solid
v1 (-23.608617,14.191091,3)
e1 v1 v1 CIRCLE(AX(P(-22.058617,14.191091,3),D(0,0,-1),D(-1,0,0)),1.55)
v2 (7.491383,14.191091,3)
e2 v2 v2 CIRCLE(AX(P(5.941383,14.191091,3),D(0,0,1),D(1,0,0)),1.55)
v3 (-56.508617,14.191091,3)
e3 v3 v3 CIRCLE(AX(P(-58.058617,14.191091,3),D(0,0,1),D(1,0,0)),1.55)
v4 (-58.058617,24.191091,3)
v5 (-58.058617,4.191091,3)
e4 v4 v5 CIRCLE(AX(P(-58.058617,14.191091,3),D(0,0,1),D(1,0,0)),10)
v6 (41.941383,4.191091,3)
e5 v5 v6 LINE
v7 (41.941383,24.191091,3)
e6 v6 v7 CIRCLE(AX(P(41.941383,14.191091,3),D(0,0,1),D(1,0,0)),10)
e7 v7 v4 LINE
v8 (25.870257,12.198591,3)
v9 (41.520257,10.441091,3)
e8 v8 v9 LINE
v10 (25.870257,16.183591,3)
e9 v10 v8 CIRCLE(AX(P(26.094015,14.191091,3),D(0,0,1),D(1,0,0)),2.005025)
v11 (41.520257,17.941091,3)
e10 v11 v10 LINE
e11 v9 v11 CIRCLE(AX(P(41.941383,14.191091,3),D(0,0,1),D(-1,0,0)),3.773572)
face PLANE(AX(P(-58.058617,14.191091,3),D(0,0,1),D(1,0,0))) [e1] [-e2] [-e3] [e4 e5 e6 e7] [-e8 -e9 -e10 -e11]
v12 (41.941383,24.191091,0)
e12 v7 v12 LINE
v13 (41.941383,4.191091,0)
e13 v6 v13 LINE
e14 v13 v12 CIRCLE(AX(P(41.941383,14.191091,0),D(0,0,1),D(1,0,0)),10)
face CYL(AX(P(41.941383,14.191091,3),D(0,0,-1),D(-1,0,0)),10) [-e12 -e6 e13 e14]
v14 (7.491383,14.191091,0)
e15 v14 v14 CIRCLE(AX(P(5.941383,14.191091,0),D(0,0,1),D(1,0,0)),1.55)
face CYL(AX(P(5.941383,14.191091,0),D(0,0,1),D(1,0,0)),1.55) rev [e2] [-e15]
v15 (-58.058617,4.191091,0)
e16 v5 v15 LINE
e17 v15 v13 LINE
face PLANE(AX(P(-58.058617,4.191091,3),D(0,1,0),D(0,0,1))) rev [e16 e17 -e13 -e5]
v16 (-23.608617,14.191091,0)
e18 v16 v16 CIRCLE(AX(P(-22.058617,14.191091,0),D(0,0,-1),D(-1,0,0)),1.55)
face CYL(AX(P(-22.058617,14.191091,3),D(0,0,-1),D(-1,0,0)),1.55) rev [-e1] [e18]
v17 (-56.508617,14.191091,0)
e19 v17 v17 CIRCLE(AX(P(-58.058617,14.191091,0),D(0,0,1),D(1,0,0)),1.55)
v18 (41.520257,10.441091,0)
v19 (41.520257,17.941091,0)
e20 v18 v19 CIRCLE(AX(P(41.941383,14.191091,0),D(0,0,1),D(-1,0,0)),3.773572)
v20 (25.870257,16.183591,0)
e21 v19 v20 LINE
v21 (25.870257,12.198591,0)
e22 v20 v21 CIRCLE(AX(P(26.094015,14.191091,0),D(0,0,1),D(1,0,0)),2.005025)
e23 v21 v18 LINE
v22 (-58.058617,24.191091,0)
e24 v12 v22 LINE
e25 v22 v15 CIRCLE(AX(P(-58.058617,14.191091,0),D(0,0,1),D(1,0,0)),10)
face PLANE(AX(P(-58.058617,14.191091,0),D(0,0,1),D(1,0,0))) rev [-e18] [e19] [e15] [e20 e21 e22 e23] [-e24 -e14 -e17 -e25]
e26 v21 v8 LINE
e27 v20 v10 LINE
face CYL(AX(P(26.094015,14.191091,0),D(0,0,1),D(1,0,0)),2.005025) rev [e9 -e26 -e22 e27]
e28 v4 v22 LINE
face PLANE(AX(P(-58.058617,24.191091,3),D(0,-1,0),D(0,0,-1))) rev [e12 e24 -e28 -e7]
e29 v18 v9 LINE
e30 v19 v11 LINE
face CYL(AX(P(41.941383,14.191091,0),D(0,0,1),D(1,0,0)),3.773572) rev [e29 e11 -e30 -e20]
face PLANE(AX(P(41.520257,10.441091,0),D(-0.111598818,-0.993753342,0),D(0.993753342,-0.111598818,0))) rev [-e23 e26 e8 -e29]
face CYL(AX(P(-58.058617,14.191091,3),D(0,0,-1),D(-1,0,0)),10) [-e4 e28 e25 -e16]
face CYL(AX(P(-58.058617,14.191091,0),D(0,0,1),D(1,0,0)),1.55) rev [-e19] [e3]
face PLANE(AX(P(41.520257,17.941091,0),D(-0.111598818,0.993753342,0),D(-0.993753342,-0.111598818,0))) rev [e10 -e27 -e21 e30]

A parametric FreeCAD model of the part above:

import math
import FreeCAD as App
import Part
import Sketcher

V = App.Vector

doc = App.newDocument("Part")
body = doc.addObject("PartDesign::Body", "Body")

# Sketch on XY plane
sketch1 = doc.addObject("Sketcher::SketchObject", "Sketch")
body.addObject(sketch1)
sketch1.AttachmentSupport = (doc.XY_Plane, [""])
sketch1.MapMode = "FlatFace"
sketch1.addGeometry([
    Part.LineSegment(V(42, 24, 0), V(-58, 24, 0)),
    Part.ArcOfCircle(Part.Circle(V(-58, 14, 0), V(0, 0, 1), 10), math.radians(90), math.radians(270)),
    Part.LineSegment(V(-58, 4, 0), V(42, 4, 0)),
    Part.ArcOfCircle(Part.Circle(V(42, 14, 0), V(0, 0, 1), 10), math.radians(-90), math.radians(90)),
], False)
sketch1.addConstraint([
    Sketcher.Constraint("Tangent", 0, 2, 1, 1),
    Sketcher.Constraint("Tangent", 1, 2, 2, 1),
    Sketcher.Constraint("Tangent", 2, 2, 3, 1),
    Sketcher.Constraint("Tangent", 3, 2, 0, 1),
    Sketcher.Constraint("Horizontal", 0),
    Sketcher.Constraint("Horizontal", 2),
    Sketcher.Constraint("Radius", 1, 10.0),
    Sketcher.Constraint("DistanceX", 0, 2, 0, 1, 100.0),
    Sketcher.Constraint("DistanceY", -1, 1, 1, 3, 14.191091),
    Sketcher.Constraint("DistanceX", 1, 3, -1, 1, 58.058617),
])
pad1 = doc.addObject("PartDesign::Pad", "Pad")
body.addObject(pad1)
pad1.Profile = sketch1
pad1.Length = 3

# Sketch on XY plane
sketch2 = doc.addObject("Sketcher::SketchObject", "Sketch001")
body.addObject(sketch2)
sketch2.AttachmentSupport = (doc.XY_Plane, [""])
sketch2.MapMode = "FlatFace"
sketch2.AttachmentOffset = App.Placement(V(0, 0, 3), App.Rotation())
sketch2.addGeometry([
    Part.LineSegment(V(41.5, 17.9, 0), V(25.9, 16.2, 0)),
    Part.ArcOfCircle(Part.Circle(V(26.1, 14.2, 0), V(0, 0, 1), 2), math.radians(96), math.radians(264)),
    Part.LineSegment(V(25.9, 12.2, 0), V(41.5, 10.4, 0)),
    Part.ArcOfCircle(Part.Circle(V(41.9, 14.2, 0), V(0, 0, 1), 3.8), math.radians(-96), math.radians(96)),
], False)
sketch2.addConstraint([
    Sketcher.Constraint("Tangent", 0, 2, 1, 1),
    Sketcher.Constraint("Tangent", 1, 2, 2, 1),
    Sketcher.Constraint("Tangent", 2, 2, 3, 1),
    Sketcher.Constraint("Tangent", 3, 2, 0, 1),
    Sketcher.Constraint("Horizontal", 1, 3, 3, 3),
    Sketcher.Constraint("DistanceY", 2, 2, 3, 2, 7.5),
    Sketcher.Constraint("DistanceX", 1, 2, 2, 2, 15.65),
    Sketcher.Constraint("Radius", 1, 2.005025),
    Sketcher.Constraint("DistanceY", -1, 1, 1, 3, 14.191091),
    Sketcher.Constraint("DistanceX", -1, 1, 1, 3, 26.094015),
])
pocket1 = doc.addObject("PartDesign::Pocket", "Pocket")
body.addObject(pocket1)
pocket1.Profile = sketch2
pocket1.Length = 3

# Sketch on XY plane
sketch3 = doc.addObject("Sketcher::SketchObject", "Sketch002")
body.addObject(sketch3)
sketch3.AttachmentSupport = (doc.XY_Plane, [""])
sketch3.MapMode = "FlatFace"
sketch3.AttachmentOffset = App.Placement(V(0, 0, 3), App.Rotation())
sketch3.addGeometry(Part.Circle(V(-58.1, 14.2, 0), V(0, 0, 1), 1.6), False)
sketch3.addConstraint([
    Sketcher.Constraint("Diameter", 0, 3.1),
    Sketcher.Constraint("DistanceY", -1, 1, 0, 3, 14.191091),
    Sketcher.Constraint("DistanceX", 0, 3, -1, 1, 58.058617),
])
pocket2 = doc.addObject("PartDesign::Pocket", "Pocket001")
body.addObject(pocket2)
pocket2.Profile = sketch3
pocket2.Length = 3

# Sketch on XY plane
sketch4 = doc.addObject("Sketcher::SketchObject", "Sketch003")
body.addObject(sketch4)
sketch4.AttachmentSupport = (doc.XY_Plane, [""])
sketch4.MapMode = "FlatFace"
sketch4.AttachmentOffset = App.Placement(V(0, 0, 3), App.Rotation())
sketch4.addGeometry(Part.Circle(V(5.9, 14.2, 0), V(0, 0, 1), 1.6), False)
sketch4.addConstraint([
    Sketcher.Constraint("Diameter", 0, 3.1),
    Sketcher.Constraint("DistanceY", -1, 1, 0, 3, 14.191091),
    Sketcher.Constraint("DistanceX", -1, 1, 0, 3, 5.941383),
])
pocket3 = doc.addObject("PartDesign::Pocket", "Pocket002")
body.addObject(pocket3)
pocket3.Profile = sketch4
pocket3.Length = 3

# Sketch on XY plane
sketch5 = doc.addObject("Sketcher::SketchObject", "Sketch004")
body.addObject(sketch5)
sketch5.AttachmentSupport = (doc.XY_Plane, [""])
sketch5.MapMode = "FlatFace"
sketch5.addGeometry(Part.Circle(V(-22.1, 14.2, 0), V(0, 0, 1), 1.6), False)
sketch5.addConstraint([
    Sketcher.Constraint("Diameter", 0, 3.1),
    Sketcher.Constraint("DistanceY", -1, 1, 0, 3, 14.191091),
    Sketcher.Constraint("DistanceX", 0, 3, -1, 1, 22.058617),
])
pocket4 = doc.addObject("PartDesign::Pocket", "Pocket003")
body.addObject(pocket4)
pocket4.Profile = sketch5
pocket4.Length = 3
pocket4.Reversed = True

doc.recompute()
